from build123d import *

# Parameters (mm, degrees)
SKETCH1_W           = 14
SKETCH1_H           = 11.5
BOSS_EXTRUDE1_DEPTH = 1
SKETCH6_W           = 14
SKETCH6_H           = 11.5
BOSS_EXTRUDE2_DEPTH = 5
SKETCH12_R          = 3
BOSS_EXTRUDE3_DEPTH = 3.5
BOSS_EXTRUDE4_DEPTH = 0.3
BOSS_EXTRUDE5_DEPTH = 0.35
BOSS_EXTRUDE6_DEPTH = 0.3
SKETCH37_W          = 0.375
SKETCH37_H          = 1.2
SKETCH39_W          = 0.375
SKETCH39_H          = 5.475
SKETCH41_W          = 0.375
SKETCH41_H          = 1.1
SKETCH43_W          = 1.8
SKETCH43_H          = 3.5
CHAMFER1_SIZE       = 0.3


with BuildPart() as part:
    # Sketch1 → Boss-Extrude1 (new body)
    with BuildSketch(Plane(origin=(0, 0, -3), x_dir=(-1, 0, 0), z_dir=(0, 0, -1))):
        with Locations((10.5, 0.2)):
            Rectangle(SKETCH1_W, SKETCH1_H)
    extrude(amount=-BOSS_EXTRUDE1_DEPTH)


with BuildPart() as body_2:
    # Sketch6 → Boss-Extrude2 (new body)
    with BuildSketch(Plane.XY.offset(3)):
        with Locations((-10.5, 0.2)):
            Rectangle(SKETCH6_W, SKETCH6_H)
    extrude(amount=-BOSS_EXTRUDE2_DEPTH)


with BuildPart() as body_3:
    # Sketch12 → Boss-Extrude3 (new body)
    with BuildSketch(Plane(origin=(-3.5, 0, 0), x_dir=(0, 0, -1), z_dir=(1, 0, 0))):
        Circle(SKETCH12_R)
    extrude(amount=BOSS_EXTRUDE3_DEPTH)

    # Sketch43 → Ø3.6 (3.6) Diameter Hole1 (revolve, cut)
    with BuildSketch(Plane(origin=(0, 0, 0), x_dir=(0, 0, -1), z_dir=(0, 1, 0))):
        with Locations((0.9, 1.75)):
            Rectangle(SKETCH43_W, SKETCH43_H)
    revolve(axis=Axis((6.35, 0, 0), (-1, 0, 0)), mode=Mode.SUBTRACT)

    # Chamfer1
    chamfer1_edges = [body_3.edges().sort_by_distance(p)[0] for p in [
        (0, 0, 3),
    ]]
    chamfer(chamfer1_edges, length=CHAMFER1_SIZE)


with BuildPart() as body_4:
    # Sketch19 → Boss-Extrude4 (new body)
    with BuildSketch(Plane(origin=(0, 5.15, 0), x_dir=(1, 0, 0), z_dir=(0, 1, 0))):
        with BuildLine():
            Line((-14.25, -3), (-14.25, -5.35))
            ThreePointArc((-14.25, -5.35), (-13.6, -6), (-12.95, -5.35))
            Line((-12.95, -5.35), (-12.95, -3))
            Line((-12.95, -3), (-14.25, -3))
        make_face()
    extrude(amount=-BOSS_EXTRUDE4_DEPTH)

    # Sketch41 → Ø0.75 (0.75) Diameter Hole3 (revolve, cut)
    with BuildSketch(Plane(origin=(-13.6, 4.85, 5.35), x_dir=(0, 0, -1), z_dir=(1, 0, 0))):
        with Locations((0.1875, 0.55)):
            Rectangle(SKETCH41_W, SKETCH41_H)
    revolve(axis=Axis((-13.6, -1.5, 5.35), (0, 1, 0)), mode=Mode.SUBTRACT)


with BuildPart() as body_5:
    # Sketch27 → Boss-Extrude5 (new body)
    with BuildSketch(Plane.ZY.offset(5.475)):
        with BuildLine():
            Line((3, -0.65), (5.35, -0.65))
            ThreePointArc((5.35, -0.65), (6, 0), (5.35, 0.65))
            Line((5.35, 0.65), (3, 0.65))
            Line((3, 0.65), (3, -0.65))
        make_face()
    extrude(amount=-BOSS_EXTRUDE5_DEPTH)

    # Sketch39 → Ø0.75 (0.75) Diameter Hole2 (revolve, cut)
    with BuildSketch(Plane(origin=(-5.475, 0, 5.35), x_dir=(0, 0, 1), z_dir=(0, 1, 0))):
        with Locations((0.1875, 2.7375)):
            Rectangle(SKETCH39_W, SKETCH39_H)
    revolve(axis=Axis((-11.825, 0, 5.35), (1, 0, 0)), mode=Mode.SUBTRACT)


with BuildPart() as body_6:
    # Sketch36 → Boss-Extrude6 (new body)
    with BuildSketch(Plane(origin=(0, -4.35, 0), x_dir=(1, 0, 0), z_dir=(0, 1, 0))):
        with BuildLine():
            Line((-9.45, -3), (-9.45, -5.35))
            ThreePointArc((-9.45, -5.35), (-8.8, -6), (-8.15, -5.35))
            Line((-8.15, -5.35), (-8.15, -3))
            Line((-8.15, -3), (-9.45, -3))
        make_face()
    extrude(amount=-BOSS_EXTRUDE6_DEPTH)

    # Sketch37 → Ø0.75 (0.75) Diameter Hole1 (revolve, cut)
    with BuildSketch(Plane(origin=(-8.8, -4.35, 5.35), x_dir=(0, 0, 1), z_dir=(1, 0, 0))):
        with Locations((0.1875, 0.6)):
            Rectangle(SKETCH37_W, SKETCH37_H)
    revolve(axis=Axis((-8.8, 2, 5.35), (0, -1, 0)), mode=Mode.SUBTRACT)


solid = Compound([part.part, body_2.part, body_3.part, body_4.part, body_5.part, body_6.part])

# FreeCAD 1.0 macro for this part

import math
import FreeCAD as App
import Part
import Sketcher

V = App.Vector


def edges_at(feature, points):
    """Names of the edges that pass closest to the given points."""
    edges = feature.Shape.Edges
    near = lambda p: min(range(len(edges)), key=lambda i: edges[i].distToShape(Part.Vertex(*p))[0])
    return sorted({f"Edge{near(p) + 1}" for p in points})

doc = App.newDocument("Part")
params = doc.addObject("Spreadsheet::Sheet", "Params")
for row, (alias, value) in enumerate([
    ("sketch1_width", "14 mm"),
    ("sketch1_height", "11.5 mm"),
    ("pad1_length", "1 mm"),
    ("sketch2_width", "14 mm"),
    ("sketch2_height", "11.5 mm"),
    ("pad2_length", "5 mm"),
    ("sketch3_diameter", "6 mm"),
    ("pad3_length", "3.5 mm"),
    ("sketch4_width", "3.5 mm"),
    ("sketch4_height", "1.8 mm"),
    ("groove_angle", "360 deg"),
    ("chamfer_size", "0.3 mm"),
    ("sketch5_radius", "0.65 mm"),
    ("sketch5_height", "2.35 mm"),
    ("pad4_length", "0.3 mm"),
    ("sketch6_width", "1.1 mm"),
    ("groove2_angle", "360 deg"),
    ("sketch7_radius", "0.65 mm"),
    ("sketch7_height", "2.35 mm"),
    ("pad5_length", "0.35 mm"),
    ("groove3_angle", "360 deg"),
    ("sketch9_radius", "0.65 mm"),
    ("sketch9_height", "2.35 mm"),
    ("pad6_length", "0.3 mm"),
    ("sketch10_width", "1.2 mm"),
    ("groove4_angle", "360 deg"),
], start=1):
    params.set(f"A{row}", alias)
    params.set(f"B{row}", "=" + value)
    params.setAlias(f"B{row}", alias)

body = doc.addObject("PartDesign::Body", "Body")

# Sketch on XY plane
sketch1 = body.newObject("Sketcher::SketchObject", "Sketch")
sketch1.AttachmentSupport = (doc.getObject("XY_Plane"), [""])
sketch1.MapMode = "FlatFace"
sketch1.AttachmentOffset = App.Placement(V(0, 0, -3), App.Rotation())
sketch1.addGeometry([
    Part.LineSegment(V(-3.5, 5.95, 0), V(-3.5, -5.55, 0)),
    Part.LineSegment(V(-3.5, -5.55, 0), V(-17.5, -5.55, 0)),
    Part.LineSegment(V(-17.5, -5.55, 0), V(-17.5, 5.95, 0)),
    Part.LineSegment(V(-17.5, 5.95, 0), V(-3.5, 5.95, 0)),
], False)
sketch1.addConstraint([
    Sketcher.Constraint("Coincident", 0, 2, 1, 1),
    Sketcher.Constraint("Coincident", 1, 2, 2, 1),
    Sketcher.Constraint("Coincident", 2, 2, 3, 1),
    Sketcher.Constraint("Coincident", 3, 2, 0, 1),
    Sketcher.Constraint("Vertical", 0),
    Sketcher.Constraint("Horizontal", 1),
    Sketcher.Constraint("Vertical", 2),
    Sketcher.Constraint("Horizontal", 3),
    Sketcher.Constraint("DistanceX", 1, 2, 1, 1, 14.0),
    Sketcher.Constraint("DistanceY", 0, 2, 0, 1, 11.5),
    Sketcher.Constraint("DistanceX", 0, 2, -1, 1, 3.5),
    Sketcher.Constraint("DistanceY", 0, 2, -1, 1, 5.55),
])
sketch1.setExpression("Constraints[8]", "Params.sketch1_width")
sketch1.setExpression("Constraints[9]", "Params.sketch1_height")
pad1 = body.newObject("PartDesign::Pad", "Pad")
pad1.Profile = sketch1
pad1.setExpression("Length", "Params.pad1_length")
body2 = doc.addObject("PartDesign::Body", "Body001")

# Sketch on XY plane
sketch2 = body2.newObject("Sketcher::SketchObject", "Sketch001")
sketch2.AttachmentSupport = (doc.getObject("XY_Plane001"), [""])
sketch2.MapMode = "FlatFace"
sketch2.AttachmentOffset = App.Placement(V(0, 0, 3), App.Rotation())
sketch2.addGeometry([
    Part.LineSegment(V(-17.5, 5.95, 0), V(-17.5, -5.55, 0)),
    Part.LineSegment(V(-17.5, -5.55, 0), V(-3.5, -5.55, 0)),
    Part.LineSegment(V(-3.5, -5.55, 0), V(-3.5, 5.95, 0)),
    Part.LineSegment(V(-3.5, 5.95, 0), V(-17.5, 5.95, 0)),
], False)
sketch2.addConstraint([
    Sketcher.Constraint("Coincident", 0, 2, 1, 1),
    Sketcher.Constraint("Coincident", 1, 2, 2, 1),
    Sketcher.Constraint("Coincident", 2, 2, 3, 1),
    Sketcher.Constraint("Coincident", 3, 2, 0, 1),
    Sketcher.Constraint("Vertical", 0),
    Sketcher.Constraint("Horizontal", 1),
    Sketcher.Constraint("Vertical", 2),
    Sketcher.Constraint("Horizontal", 3),
    Sketcher.Constraint("DistanceX", 1, 1, 1, 2, 14.0),
    Sketcher.Constraint("DistanceY", 0, 2, 0, 1, 11.5),
    Sketcher.Constraint("DistanceX", 0, 2, -1, 1, 17.5),
    Sketcher.Constraint("DistanceY", 0, 2, -1, 1, 5.55),
])
sketch2.setExpression("Constraints[8]", "Params.sketch2_width")
sketch2.setExpression("Constraints[9]", "Params.sketch2_height")
pad2 = body2.newObject("PartDesign::Pad", "Pad001")
pad2.Profile = sketch2
pad2.setExpression("Length", "Params.pad2_length")
pad2.Reversed = True
body3 = doc.addObject("PartDesign::Body", "Body002")

# Sketch on YZ plane
sketch3 = body3.newObject("Sketcher::SketchObject", "Sketch002")
sketch3.AttachmentSupport = (doc.getObject("YZ_Plane002"), [""])
sketch3.MapMode = "FlatFace"
sketch3.AttachmentOffset = App.Placement(V(0, 0, -3.5), App.Rotation())
sketch3.addGeometry(Part.Circle(V(0, 0, 0), V(0, 0, 1), 3), False)
sketch3.addConstraint([
    Sketcher.Constraint("Coincident", 0, 3, -1, 1),
    Sketcher.Constraint("Diameter", 0, 6.0),
])
sketch3.setExpression("Constraints[1]", "Params.sketch3_diameter")
pad3 = body3.newObject("PartDesign::Pad", "Pad002")
pad3.Profile = sketch3
pad3.setExpression("Length", "Params.pad3_length")

# Sketch on XZ plane
sketch4 = body3.newObject("Sketcher::SketchObject", "Sketch003")
sketch4.AttachmentSupport = (doc.getObject("XZ_Plane002"), [""])
sketch4.MapMode = "FlatFace"
sketch4.addGeometry([
    Part.LineSegment(V(-3.5, 0, 0), V(0, 0, 0)),
    Part.LineSegment(V(0, 0, 0), V(0, -1.8, 0)),
    Part.LineSegment(V(0, -1.8, 0), V(-3.5, -1.8, 0)),
    Part.LineSegment(V(-3.5, -1.8, 0), V(-3.5, 0, 0)),
], False)
sketch4.addConstraint([
    Sketcher.Constraint("Coincident", 0, 2, 1, 1),
    Sketcher.Constraint("Coincident", 1, 2, 2, 1),
    Sketcher.Constraint("Coincident", 2, 2, 3, 1),
    Sketcher.Constraint("Coincident", 3, 2, 0, 1),
    Sketcher.Constraint("Horizontal", 0),
    Sketcher.Constraint("Vertical", 1),
    Sketcher.Constraint("Horizontal", 2),
    Sketcher.Constraint("Vertical", 3),
    Sketcher.Constraint("Coincident", 0, 2, -1, 1),
    Sketcher.Constraint("DistanceX", 0, 1, 0, 2, 3.5),
    Sketcher.Constraint("DistanceY", 1, 2, 1, 1, 1.8),
])
sketch4.setExpression("Constraints[9]", "Params.sketch4_width")
sketch4.setExpression("Constraints[10]", "Params.sketch4_height")
groove = body3.newObject("PartDesign::Groove", "Groove")
groove.Profile = sketch4
groove.ReferenceAxis = (sketch4, ["H_Axis"])
groove.setExpression("Angle", "Params.groove_angle")
doc.recompute()

chamfer = body3.newObject("PartDesign::Chamfer", "Chamfer")
chamfer.Base = (groove, edges_at(groove, [(0, 0, 3)]))
chamfer.setExpression("Size", "Params.chamfer_size")
body4 = doc.addObject("PartDesign::Body", "Body003")

# Sketch on XZ plane
sketch5 = body4.newObject("Sketcher::SketchObject", "Sketch004")
sketch5.AttachmentSupport = (doc.getObject("XZ_Plane003"), [""])
sketch5.MapMode = "FlatFace"
sketch5.AttachmentOffset = App.Placement(V(0, 0, -5.15), App.Rotation())
sketch5.addGeometry([
    Part.LineSegment(V(-14.25, 3, 0), V(-14.25, 5.35, 0)),
    Part.ArcOfCircle(Part.Circle(V(-13.6, 5.35, 0), V(0, 0, 1), 0.65), math.radians(0), math.radians(180)),
    Part.LineSegment(V(-12.95, 5.35, 0), V(-12.95, 3, 0)),
    Part.LineSegment(V(-12.95, 3, 0), V(-14.25, 3, 0)),
], False)
sketch5.addConstraint([
    Sketcher.Constraint("Tangent", 0, 2, 1, 2),
    Sketcher.Constraint("Tangent", 1, 1, 2, 1),
    Sketcher.Constraint("Coincident", 2, 2, 3, 1),
    Sketcher.Constraint("Coincident", 3, 2, 0, 1),
    Sketcher.Constraint("Vertical", 0),
    Sketcher.Constraint("Vertical", 2),
    Sketcher.Constraint("Horizontal", 3),
    Sketcher.Constraint("Radius", 1, 0.65),
    Sketcher.Constraint("DistanceY", -1, 1, 2, 2, 3.0),
    Sketcher.Constraint("DistanceY", 0, 1, 0, 2, 2.35),
    Sketcher.Constraint("DistanceX", 1, 3, -1, 1, 13.6),
])
sketch5.setExpression("Constraints[7]", "Params.sketch5_radius")
sketch5.setExpression("Constraints[9]", "Params.sketch5_height")
pad4 = body4.newObject("PartDesign::Pad", "Pad003")
pad4.Profile = sketch5
pad4.setExpression("Length", "Params.pad4_length")

# Sketch on YZ plane
sketch6 = body4.newObject("Sketcher::SketchObject", "Sketch005")
sketch6.AttachmentSupport = (doc.getObject("YZ_Plane003"), [""])
sketch6.MapMode = "FlatFace"
sketch6.AttachmentOffset = App.Placement(V(0, 0, -13.6), App.Rotation())
sketch6.addGeometry([
    Part.LineSegment(V(5.95, 5.35, 0), V(4.85, 5.35, 0)),
    Part.LineSegment(V(4.85, 5.35, 0), V(4.85, 4.975, 0)),
    Part.LineSegment(V(4.85, 4.975, 0), V(5.95, 4.975, 0)),
    Part.LineSegment(V(5.95, 4.975, 0), V(5.95, 5.35, 0)),
], False)
sketch6.addGeometry(Part.LineSegment(V(4.85, 5.35, 0), V(5.95, 5.35, 0)), True)  # axis
sketch6.addConstraint([
    Sketcher.Constraint("Coincident", 0, 2, 1, 1),
    Sketcher.Constraint("Coincident", 1, 2, 2, 1),
    Sketcher.Constraint("Coincident", 2, 2, 3, 1),
    Sketcher.Constraint("Coincident", 3, 2, 0, 1),
    Sketcher.Constraint("Horizontal", 0),
    Sketcher.Constraint("Vertical", 1),
    Sketcher.Constraint("Horizontal", 2),
    Sketcher.Constraint("Vertical", 3),
    Sketcher.Constraint("Horizontal", 4),
    Sketcher.Constraint("Coincident", 4, 1, 0, 2),
    Sketcher.Constraint("Vertical", 2, 2, 4, 2),
    Sketcher.Constraint("DistanceX", 0, 2, 0, 1, 1.1),
    Sketcher.Constraint("DistanceY", 1, 2, 1, 1, 0.375),
    Sketcher.Constraint("DistanceX", -1, 1, 0, 2, 4.85),
    Sketcher.Constraint("DistanceY", -1, 1, 0, 2, 5.35),
])
sketch6.setExpression("Constraints[11]", "Params.sketch6_width")
groove2 = body4.newObject("PartDesign::Groove", "Groove001")
groove2.Profile = sketch6
groove2.ReferenceAxis = (sketch6, ["Axis0"])
groove2.setExpression("Angle", "Params.groove2_angle")
body5 = doc.addObject("PartDesign::Body", "Body004")

# Sketch on YZ plane
sketch7 = body5.newObject("Sketcher::SketchObject", "Sketch006")
sketch7.AttachmentSupport = (doc.getObject("YZ_Plane004"), [""])
sketch7.MapMode = "FlatFace"
sketch7.AttachmentOffset = App.Placement(V(0, 0, -5.475), App.Rotation())
sketch7.addGeometry([
    Part.LineSegment(V(-0.65, 3, 0), V(-0.65, 5.35, 0)),
    Part.ArcOfCircle(Part.Circle(V(0, 5.35, 0), V(0, 0, 1), 0.65), math.radians(0), math.radians(180)),
    Part.LineSegment(V(0.65, 5.35, 0), V(0.65, 3, 0)),
    Part.LineSegment(V(0.65, 3, 0), V(-0.65, 3, 0)),
], False)
sketch7.addConstraint([
    Sketcher.Constraint("Tangent", 0, 2, 1, 2),
    Sketcher.Constraint("Tangent", 1, 1, 2, 1),
    Sketcher.Constraint("Coincident", 2, 2, 3, 1),
    Sketcher.Constraint("Coincident", 3, 2, 0, 1),
    Sketcher.Constraint("Vertical", 0),
    Sketcher.Constraint("Vertical", 2),
    Sketcher.Constraint("Horizontal", 3),
    Sketcher.Constraint("PointOnObject", 1, 3, -2),
    Sketcher.Constraint("Radius", 1, 0.65),
    Sketcher.Constraint("DistanceY", -1, 1, 2, 2, 3.0),
    Sketcher.Constraint("DistanceY", 0, 1, 0, 2, 2.35),
])
sketch7.setExpression("Constraints[8]", "Params.sketch7_radius")
sketch7.setExpression("Constraints[10]", "Params.sketch7_height")
pad5 = body5.newObject("PartDesign::Pad", "Pad004")
pad5.Profile = sketch7
pad5.setExpression("Length", "Params.pad5_length")

# Sketch on XZ plane
sketch8 = body5.newObject("Sketcher::SketchObject", "Sketch007")
sketch8.AttachmentSupport = (doc.getObject("XZ_Plane004"), [""])
sketch8.MapMode = "FlatFace"
sketch8.addGeometry([
    Part.LineSegment(V(0, 5.35, 0), V(-5.475, 5.35, 0)),
    Part.LineSegment(V(-5.475, 5.35, 0), V(-5.475, 5.725, 0)),
    Part.LineSegment(V(-5.475, 5.725, 0), V(0, 5.725, 0)),
    Part.LineSegment(V(0, 5.725, 0), V(0, 5.35, 0)),
], False)
sketch8.addGeometry(Part.LineSegment(V(-5.475, 5.35, 0), V(0, 5.35, 0)), True)  # axis
sketch8.addConstraint([
    Sketcher.Constraint("Coincident", 0, 2, 1, 1),
    Sketcher.Constraint("Coincident", 1, 2, 2, 1),
    Sketcher.Constraint("Coincident", 2, 2, 3, 1),
    Sketcher.Constraint("Coincident", 3, 2, 0, 1),
    Sketcher.Constraint("Horizontal", 0),
    Sketcher.Constraint("Vertical", 1),
    Sketcher.Constraint("Horizontal", 2),
    Sketcher.Constraint("Vertical", 3),
    Sketcher.Constraint("Horizontal", 4),
    Sketcher.Constraint("Coincident", 4, 1, 0, 2),
    Sketcher.Constraint("PointOnObject", 2, 2, -2),
    Sketcher.Constraint("PointOnObject", 4, 2, -2),
    Sketcher.Constraint("DistanceX", 0, 2, 0, 1, 5.475),
    Sketcher.Constraint("DistanceY", 1, 1, 1, 2, 0.375),
    Sketcher.Constraint("DistanceY", -1, 1, 0, 2, 5.35),
])
groove3 = body5.newObject("PartDesign::Groove", "Groove002")
groove3.Profile = sketch8
groove3.ReferenceAxis = (sketch8, ["Axis0"])
groove3.setExpression("Angle", "Params.groove3_angle")
body6 = doc.addObject("PartDesign::Body", "Body005")

# Sketch on XZ plane
sketch9 = body6.newObject("Sketcher::SketchObject", "Sketch008")
sketch9.AttachmentSupport = (doc.getObject("XZ_Plane005"), [""])
sketch9.MapMode = "FlatFace"
sketch9.AttachmentOffset = App.Placement(V(0, 0, 4.35), App.Rotation())
sketch9.addGeometry([
    Part.LineSegment(V(-9.45, 3, 0), V(-9.45, 5.35, 0)),
    Part.ArcOfCircle(Part.Circle(V(-8.8, 5.35, 0), V(0, 0, 1), 0.65), math.radians(0), math.radians(180)),
    Part.LineSegment(V(-8.15, 5.35, 0), V(-8.15, 3, 0)),
    Part.LineSegment(V(-8.15, 3, 0), V(-9.45, 3, 0)),
], False)
sketch9.addConstraint([
    Sketcher.Constraint("Tangent", 0, 2, 1, 2),
    Sketcher.Constraint("Tangent", 1, 1, 2, 1),
    Sketcher.Constraint("Coincident", 2, 2, 3, 1),
    Sketcher.Constraint("Coincident", 3, 2, 0, 1),
    Sketcher.Constraint("Vertical", 0),
    Sketcher.Constraint("Vertical", 2),
    Sketcher.Constraint("Horizontal", 3),
    Sketcher.Constraint("Radius", 1, 0.65),
    Sketcher.Constraint("DistanceY", -1, 1, 2, 2, 3.0),
    Sketcher.Constraint("DistanceY", 0, 1, 0, 2, 2.35),
    Sketcher.Constraint("DistanceX", 1, 3, -1, 1, 8.8),
])
sketch9.setExpression("Constraints[7]", "Params.sketch9_radius")
sketch9.setExpression("Constraints[9]", "Params.sketch9_height")
pad6 = body6.newObject("PartDesign::Pad", "Pad005")
pad6.Profile = sketch9
pad6.setExpression("Length", "Params.pad6_length")

# Sketch on YZ plane
sketch10 = body6.newObject("Sketcher::SketchObject", "Sketch009")
sketch10.AttachmentSupport = (doc.getObject("YZ_Plane005"), [""])
sketch10.MapMode = "FlatFace"
sketch10.AttachmentOffset = App.Placement(V(0, 0, -8.8), App.Rotation())
sketch10.addGeometry([
    Part.LineSegment(V(-5.55, 5.35, 0), V(-4.35, 5.35, 0)),
    Part.LineSegment(V(-4.35, 5.35, 0), V(-4.35, 5.725, 0)),
    Part.LineSegment(V(-4.35, 5.725, 0), V(-5.55, 5.725, 0)),
    Part.LineSegment(V(-5.55, 5.725, 0), V(-5.55, 5.35, 0)),
], False)
sketch10.addGeometry(Part.LineSegment(V(-4.35, 5.35, 0), V(-5.55, 5.35, 0)), True)  # axis
sketch10.addConstraint([
    Sketcher.Constraint("Coincident", 0, 2, 1, 1),
    Sketcher.Constraint("Coincident", 1, 2, 2, 1),
    Sketcher.Constraint("Coincident", 2, 2, 3, 1),
    Sketcher.Constraint("Coincident", 3, 2, 0, 1),
    Sketcher.Constraint("Horizontal", 0),
    Sketcher.Constraint("Vertical", 1),
    Sketcher.Constraint("Horizontal", 2),
    Sketcher.Constraint("Vertical", 3),
    Sketcher.Constraint("Horizontal", 4),
    Sketcher.Constraint("Coincident", 4, 1, 0, 2),
    Sketcher.Constraint("Vertical", 2, 2, 4, 2),
    Sketcher.Constraint("DistanceX", 0, 1, 0, 2, 1.2),
    Sketcher.Constraint("DistanceY", 1, 1, 1, 2, 0.375),
    Sketcher.Constraint("DistanceX", 0, 2, -1, 1, 4.35),
    Sketcher.Constraint("DistanceY", -1, 1, 0, 2, 5.35),
])
sketch10.setExpression("Constraints[11]", "Params.sketch10_width")
groove4 = body6.newObject("PartDesign::Groove", "Groove003")
groove4.Profile = sketch10
groove4.ReferenceAxis = (sketch10, ["Axis0"])
groove4.setExpression("Angle", "Params.groove4_angle")

doc.recompute()
